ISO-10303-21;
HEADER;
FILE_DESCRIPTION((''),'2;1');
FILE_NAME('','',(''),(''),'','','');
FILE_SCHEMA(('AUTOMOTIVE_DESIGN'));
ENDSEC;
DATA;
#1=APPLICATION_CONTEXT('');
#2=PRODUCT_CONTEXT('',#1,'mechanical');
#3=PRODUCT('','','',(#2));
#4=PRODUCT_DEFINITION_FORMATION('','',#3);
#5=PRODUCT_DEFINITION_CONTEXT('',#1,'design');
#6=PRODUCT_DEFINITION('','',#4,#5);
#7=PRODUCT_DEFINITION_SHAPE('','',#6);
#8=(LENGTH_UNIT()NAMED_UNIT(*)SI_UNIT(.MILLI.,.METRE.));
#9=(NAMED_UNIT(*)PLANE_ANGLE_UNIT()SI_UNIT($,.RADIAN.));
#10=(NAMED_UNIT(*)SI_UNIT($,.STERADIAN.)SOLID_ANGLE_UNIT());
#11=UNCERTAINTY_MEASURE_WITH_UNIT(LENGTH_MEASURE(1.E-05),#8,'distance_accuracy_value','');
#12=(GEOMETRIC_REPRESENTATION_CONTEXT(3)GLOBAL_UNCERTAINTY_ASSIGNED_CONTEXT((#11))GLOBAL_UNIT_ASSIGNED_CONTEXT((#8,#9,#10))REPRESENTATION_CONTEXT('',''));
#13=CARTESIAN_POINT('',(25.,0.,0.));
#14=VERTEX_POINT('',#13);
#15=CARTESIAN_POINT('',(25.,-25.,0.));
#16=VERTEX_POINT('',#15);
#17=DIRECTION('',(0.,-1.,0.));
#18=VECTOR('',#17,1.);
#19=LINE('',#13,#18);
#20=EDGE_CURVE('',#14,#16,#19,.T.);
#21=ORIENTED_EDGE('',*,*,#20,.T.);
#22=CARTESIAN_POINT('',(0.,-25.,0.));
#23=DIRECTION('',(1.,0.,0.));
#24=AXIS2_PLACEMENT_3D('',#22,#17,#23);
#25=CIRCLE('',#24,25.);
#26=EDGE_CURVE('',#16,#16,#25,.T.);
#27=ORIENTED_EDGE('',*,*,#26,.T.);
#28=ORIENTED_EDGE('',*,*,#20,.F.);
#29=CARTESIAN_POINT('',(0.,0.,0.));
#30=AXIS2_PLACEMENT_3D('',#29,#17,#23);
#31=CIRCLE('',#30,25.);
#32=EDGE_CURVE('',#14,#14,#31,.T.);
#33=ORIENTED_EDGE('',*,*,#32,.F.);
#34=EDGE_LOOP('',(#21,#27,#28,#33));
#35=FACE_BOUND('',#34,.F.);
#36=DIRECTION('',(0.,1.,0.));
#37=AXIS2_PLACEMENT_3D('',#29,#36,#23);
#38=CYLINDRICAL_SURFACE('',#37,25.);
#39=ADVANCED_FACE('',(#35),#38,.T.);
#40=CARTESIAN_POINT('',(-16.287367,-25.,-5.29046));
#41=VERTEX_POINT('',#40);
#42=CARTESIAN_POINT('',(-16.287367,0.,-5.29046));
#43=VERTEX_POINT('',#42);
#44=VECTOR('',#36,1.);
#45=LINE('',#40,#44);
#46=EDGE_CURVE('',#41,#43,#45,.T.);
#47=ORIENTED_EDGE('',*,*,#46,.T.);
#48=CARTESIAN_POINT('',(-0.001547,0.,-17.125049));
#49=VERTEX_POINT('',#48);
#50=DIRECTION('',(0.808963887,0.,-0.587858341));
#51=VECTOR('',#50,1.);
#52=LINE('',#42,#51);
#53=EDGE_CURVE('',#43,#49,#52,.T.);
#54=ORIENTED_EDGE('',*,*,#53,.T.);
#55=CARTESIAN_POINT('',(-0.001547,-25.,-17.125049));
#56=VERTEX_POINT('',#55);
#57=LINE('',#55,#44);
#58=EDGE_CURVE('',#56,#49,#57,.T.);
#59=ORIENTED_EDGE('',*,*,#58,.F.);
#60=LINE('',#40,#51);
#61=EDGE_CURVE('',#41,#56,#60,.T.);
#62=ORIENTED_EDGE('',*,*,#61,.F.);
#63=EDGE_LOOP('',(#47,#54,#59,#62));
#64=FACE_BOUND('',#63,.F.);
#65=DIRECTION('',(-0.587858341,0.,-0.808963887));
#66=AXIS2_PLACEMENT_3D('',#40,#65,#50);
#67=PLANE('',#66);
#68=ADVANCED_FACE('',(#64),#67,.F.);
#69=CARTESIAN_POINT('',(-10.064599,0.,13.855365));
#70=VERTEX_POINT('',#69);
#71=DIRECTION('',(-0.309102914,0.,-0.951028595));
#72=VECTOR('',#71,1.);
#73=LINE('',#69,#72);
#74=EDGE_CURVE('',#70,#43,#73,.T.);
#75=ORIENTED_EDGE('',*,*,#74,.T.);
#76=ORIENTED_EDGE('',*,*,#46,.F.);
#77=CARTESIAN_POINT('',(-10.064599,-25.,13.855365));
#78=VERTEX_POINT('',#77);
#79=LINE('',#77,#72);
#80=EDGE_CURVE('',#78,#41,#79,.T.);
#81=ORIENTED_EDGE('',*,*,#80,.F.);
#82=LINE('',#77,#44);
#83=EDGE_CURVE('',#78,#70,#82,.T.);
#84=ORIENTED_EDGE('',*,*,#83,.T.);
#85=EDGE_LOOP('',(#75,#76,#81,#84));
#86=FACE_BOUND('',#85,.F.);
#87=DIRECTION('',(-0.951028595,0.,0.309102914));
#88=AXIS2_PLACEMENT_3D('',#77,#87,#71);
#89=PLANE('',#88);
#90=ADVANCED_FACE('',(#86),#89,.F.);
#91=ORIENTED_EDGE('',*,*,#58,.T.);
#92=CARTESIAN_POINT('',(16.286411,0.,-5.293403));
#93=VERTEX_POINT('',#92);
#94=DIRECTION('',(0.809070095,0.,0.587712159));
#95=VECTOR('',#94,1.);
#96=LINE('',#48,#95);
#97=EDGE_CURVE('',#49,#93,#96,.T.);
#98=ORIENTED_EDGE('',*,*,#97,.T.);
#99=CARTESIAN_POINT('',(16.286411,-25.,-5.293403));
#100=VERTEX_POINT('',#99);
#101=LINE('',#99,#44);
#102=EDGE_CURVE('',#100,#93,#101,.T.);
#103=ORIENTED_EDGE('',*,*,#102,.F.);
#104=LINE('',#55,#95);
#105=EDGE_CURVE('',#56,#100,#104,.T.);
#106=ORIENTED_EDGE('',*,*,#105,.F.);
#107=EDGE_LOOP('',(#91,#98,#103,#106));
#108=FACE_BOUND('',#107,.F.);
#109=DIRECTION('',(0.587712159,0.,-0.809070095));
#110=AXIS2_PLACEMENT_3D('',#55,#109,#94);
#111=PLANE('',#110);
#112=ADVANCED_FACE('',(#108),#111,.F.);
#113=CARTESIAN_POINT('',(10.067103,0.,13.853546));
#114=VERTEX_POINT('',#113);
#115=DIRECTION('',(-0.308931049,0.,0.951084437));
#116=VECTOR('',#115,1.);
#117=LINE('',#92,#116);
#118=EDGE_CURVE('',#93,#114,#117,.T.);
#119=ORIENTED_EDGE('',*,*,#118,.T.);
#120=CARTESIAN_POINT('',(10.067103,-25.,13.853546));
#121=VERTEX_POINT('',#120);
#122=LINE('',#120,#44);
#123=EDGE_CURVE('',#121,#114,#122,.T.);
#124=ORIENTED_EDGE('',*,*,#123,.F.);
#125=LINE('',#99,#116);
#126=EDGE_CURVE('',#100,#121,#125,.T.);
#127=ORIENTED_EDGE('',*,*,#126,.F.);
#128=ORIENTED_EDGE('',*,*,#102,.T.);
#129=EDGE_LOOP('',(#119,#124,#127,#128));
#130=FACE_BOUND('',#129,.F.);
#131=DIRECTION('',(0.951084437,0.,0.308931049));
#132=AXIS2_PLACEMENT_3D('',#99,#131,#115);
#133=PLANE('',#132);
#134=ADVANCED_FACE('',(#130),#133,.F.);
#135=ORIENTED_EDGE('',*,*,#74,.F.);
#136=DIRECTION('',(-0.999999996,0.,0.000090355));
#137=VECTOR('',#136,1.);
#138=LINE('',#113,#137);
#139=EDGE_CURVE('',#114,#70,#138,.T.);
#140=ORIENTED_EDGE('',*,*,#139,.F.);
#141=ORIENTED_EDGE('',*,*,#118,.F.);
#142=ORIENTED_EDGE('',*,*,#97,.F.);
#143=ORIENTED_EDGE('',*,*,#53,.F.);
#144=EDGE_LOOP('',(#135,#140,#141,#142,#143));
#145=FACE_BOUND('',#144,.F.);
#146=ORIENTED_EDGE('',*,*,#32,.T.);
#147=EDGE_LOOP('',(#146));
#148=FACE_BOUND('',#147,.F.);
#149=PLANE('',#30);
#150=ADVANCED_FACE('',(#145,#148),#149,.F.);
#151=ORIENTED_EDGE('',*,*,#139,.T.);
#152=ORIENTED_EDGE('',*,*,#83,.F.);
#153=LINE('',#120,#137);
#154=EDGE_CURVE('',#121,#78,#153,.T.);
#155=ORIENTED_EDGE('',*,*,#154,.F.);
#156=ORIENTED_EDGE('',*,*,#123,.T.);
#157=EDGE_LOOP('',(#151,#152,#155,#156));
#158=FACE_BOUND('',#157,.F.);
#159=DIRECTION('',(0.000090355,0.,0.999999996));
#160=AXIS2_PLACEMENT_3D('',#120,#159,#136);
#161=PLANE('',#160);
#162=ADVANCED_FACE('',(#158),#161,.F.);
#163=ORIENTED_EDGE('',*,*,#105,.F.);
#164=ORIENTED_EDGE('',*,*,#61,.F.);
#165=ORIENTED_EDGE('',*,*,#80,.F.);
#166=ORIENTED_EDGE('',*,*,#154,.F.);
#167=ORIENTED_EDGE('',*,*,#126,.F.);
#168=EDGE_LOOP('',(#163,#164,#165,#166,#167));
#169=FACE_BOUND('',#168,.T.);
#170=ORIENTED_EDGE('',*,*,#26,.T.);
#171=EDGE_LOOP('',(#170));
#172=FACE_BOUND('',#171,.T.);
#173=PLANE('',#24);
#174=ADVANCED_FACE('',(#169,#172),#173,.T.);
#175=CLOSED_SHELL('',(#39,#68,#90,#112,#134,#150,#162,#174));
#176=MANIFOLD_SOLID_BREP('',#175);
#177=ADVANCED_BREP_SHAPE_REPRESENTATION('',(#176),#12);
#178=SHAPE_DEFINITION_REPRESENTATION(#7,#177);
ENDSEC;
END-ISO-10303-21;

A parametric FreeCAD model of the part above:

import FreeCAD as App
import Part
import Sketcher

doc = App.newDocument("Part")
body = doc.addObject("PartDesign::Body", "Body")

sketch1 = doc.addObject("Sketcher::SketchObject", "Sketch")
body.addObject(sketch1)
sketch1.AttachmentSupport = (doc.XZ_Plane, [""])
sketch1.MapMode = "FlatFace"
sketch1.addGeometry(Part.Circle(App.Vector(0, 0, 0), App.Vector(0, 0, 1), 25), False)
sketch1.addConstraint(Sketcher.Constraint("Coincident", 0, 3, -1, 1))
sketch1.addConstraint(Sketcher.Constraint("Diameter", 0, 50.0))
pad1 = doc.addObject("PartDesign::Pad", "Pad")
body.addObject(pad1)
pad1.Profile = sketch1
pad1.Length = 25

sketch2 = doc.addObject("Sketcher::SketchObject", "Sketch001")
body.addObject(sketch2)
sketch2.AttachmentSupport = (doc.XZ_Plane, [""])
sketch2.MapMode = "FlatFace"
sketch2.AttachmentOffset = App.Placement(App.Vector(0, 0, 25), App.Rotation())
sketch2.addGeometry(Part.LineSegment(App.Vector(16, -5, 0), App.Vector(10, 14, 0)), False)
sketch2.addGeometry(Part.LineSegment(App.Vector(10, 14, 0), App.Vector(-10, 14, 0)), False)
sketch2.addGeometry(Part.LineSegment(App.Vector(-10, 14, 0), App.Vector(-16, -5, 0)), False)
sketch2.addGeometry(Part.LineSegment(App.Vector(-16, -5, 0), App.Vector(0, -17, 0)), False)
sketch2.addGeometry(Part.LineSegment(App.Vector(0, -17, 0), App.Vector(16, -5, 0)), False)
sketch2.addConstraint(Sketcher.Constraint("Coincident", 0, 2, 1, 1))
sketch2.addConstraint(Sketcher.Constraint("Coincident", 1, 2, 2, 1))
sketch2.addConstraint(Sketcher.Constraint("Coincident", 2, 2, 3, 1))
sketch2.addConstraint(Sketcher.Constraint("Coincident", 3, 2, 4, 1))
sketch2.addConstraint(Sketcher.Constraint("Coincident", 4, 2, 0, 1))
sketch2.addConstraint(Sketcher.Constraint("Equal", 0, 1))
sketch2.addConstraint(Sketcher.Constraint("Equal", 1, 2))
sketch2.addConstraint(Sketcher.Constraint("Equal", 2, 3))
sketch2.addConstraint(Sketcher.Constraint("Equal", 3, 4))
sketch2.addConstraint(Sketcher.Constraint("Distance", 4, 20.131702))
sketch2.addConstraint(Sketcher.Constraint("DistanceX", 1, 2, -1, 1, 10.064599))
sketch2.addConstraint(Sketcher.Constraint("DistanceY", 2, 2, -1, 1, 5.29046))
sketch2.addConstraint(Sketcher.Constraint("DistanceY", 3, 2, -1, 1, 17.125049))
sketch2.addConstraint(Sketcher.Constraint("DistanceX", -1, 1, 4, 2, 16.286411))
sketch2.addConstraint(Sketcher.Constraint("DistanceY", 0, 2, 1, 2, 0.001819))
pocket1 = doc.addObject("PartDesign::Pocket", "Pocket")
body.addObject(pocket1)
pocket1.Profile = sketch2
pocket1.Length = 25

doc.recompute()
